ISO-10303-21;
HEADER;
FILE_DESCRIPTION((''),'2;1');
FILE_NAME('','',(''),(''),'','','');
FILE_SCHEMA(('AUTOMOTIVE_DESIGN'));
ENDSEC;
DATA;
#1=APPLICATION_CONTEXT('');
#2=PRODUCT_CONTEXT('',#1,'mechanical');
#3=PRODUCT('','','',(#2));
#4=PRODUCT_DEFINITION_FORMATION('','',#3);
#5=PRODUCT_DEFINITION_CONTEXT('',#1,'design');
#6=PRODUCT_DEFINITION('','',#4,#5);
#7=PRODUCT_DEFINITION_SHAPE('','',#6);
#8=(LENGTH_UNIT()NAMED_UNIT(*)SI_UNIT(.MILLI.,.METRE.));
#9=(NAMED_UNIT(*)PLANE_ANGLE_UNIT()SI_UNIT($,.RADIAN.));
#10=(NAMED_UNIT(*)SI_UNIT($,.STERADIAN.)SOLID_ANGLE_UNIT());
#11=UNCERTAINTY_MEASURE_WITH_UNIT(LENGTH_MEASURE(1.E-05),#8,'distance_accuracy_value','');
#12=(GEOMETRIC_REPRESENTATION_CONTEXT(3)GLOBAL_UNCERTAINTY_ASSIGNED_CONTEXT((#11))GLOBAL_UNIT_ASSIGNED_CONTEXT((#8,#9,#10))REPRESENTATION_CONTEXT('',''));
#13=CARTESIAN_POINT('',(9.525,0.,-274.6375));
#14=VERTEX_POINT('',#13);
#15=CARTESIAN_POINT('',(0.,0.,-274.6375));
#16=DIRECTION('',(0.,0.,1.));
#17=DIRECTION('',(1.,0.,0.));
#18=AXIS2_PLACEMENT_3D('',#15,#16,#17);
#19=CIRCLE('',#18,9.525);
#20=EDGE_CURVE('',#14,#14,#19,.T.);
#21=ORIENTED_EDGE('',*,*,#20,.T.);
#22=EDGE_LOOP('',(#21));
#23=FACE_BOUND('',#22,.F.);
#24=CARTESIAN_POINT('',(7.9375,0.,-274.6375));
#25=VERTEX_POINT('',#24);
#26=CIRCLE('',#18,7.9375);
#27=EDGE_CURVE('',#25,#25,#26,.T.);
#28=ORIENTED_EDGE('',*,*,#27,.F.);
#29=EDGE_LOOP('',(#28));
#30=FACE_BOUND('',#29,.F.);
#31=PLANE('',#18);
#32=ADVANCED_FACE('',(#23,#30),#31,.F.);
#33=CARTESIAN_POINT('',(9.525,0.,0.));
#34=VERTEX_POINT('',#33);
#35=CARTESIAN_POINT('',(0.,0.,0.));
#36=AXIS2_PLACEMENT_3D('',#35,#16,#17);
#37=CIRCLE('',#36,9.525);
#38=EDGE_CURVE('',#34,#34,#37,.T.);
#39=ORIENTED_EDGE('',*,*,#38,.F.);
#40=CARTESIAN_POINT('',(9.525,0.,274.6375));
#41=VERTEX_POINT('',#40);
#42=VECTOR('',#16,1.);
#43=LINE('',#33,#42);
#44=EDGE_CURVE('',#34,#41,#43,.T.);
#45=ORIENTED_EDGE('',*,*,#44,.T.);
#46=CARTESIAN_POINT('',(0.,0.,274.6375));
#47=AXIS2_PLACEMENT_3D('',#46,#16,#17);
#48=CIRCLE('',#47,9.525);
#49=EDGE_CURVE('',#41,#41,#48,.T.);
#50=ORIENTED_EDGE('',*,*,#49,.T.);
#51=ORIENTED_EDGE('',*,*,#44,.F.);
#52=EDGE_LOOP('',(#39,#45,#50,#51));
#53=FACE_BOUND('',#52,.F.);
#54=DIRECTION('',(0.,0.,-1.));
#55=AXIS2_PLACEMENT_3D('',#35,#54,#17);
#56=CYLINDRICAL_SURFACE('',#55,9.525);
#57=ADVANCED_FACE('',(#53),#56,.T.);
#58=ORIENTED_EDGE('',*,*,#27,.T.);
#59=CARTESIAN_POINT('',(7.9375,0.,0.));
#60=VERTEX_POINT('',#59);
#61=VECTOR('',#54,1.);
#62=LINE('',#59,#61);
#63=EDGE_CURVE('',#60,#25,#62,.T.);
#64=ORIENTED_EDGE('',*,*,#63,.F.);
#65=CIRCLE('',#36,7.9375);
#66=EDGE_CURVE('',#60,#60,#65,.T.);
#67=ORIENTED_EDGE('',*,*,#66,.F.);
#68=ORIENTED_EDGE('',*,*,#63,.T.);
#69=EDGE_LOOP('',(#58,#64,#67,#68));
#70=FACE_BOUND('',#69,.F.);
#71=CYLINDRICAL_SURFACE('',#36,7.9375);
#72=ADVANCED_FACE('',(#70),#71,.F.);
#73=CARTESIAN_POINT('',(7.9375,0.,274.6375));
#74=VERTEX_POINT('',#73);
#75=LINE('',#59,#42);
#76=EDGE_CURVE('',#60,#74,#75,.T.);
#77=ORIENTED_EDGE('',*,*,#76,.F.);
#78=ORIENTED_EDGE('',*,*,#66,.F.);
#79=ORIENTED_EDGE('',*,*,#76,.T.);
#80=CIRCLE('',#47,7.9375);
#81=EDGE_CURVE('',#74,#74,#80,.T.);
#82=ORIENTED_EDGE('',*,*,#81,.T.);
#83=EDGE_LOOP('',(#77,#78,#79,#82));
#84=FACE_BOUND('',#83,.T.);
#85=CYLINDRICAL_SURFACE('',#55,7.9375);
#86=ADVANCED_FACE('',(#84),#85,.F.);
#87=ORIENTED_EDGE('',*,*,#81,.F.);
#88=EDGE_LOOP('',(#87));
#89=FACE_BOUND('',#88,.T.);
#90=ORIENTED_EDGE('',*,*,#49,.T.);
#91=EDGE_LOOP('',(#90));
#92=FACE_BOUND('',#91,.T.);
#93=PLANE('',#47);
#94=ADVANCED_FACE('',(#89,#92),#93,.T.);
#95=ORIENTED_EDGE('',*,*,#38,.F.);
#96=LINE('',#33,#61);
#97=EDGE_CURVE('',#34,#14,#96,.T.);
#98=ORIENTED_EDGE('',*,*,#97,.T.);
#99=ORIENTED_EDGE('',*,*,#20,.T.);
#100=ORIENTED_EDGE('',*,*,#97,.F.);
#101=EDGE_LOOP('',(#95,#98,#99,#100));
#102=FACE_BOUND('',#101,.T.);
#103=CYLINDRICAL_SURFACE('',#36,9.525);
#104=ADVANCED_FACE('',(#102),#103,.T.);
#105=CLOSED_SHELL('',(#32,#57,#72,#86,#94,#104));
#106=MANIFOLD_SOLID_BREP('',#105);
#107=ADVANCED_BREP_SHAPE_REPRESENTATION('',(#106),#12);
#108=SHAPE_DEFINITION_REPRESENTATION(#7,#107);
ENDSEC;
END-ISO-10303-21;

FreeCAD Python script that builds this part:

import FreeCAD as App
import Part
import Sketcher
from FreeCAD import Vector
Q = App.Units.Quantity

doc = App.newDocument("Part")
params = doc.addObject("Spreadsheet::Sheet", "Params")
for row, (alias, value) in enumerate([
    ("sketch1_diameter", "0.75 in"),
    ("sketch1_diameter2", "0.625 in"),
    ("pad1_length", "21.625 in"),
], start=1):
    params.set(f"A{row}", alias)
    params.set(f"B{row}", "=" + value)
    params.setAlias(f"B{row}", alias)

body = doc.addObject("PartDesign::Body", "Body")

sketch1 = body.newObject("Sketcher::SketchObject", "Sketch")
sketch1.AttachmentSupport = (doc.getObject("XY_Plane"), [""])
sketch1.MapMode = "FlatFace"
sketch1.addGeometry([
    Part.Circle(Vector(0, 0, 0), Vector(0, 0, 1), 9.525),
    Part.Circle(Vector(0, 0, 0), Vector(0, 0, 1), 7.9375),
], False)
sketch1.addConstraint([
    Sketcher.Constraint("Coincident", 0, 3, -1, 1),
    Sketcher.Constraint("Coincident", 1, 3, -1, 1),
    Sketcher.Constraint("Diameter", 0, Q("0.75 in")),
    Sketcher.Constraint("Diameter", 1, Q("0.625 in")),
])
sketch1.setExpression("Constraints[2]", "Params.sketch1_diameter")
sketch1.setExpression("Constraints[3]", "Params.sketch1_diameter2")
pad1 = body.newObject("PartDesign::Pad", "Pad")
pad1.Profile = sketch1
pad1.setExpression("Length", "Params.pad1_length")
pad1.Midplane = True

doc.recompute()
